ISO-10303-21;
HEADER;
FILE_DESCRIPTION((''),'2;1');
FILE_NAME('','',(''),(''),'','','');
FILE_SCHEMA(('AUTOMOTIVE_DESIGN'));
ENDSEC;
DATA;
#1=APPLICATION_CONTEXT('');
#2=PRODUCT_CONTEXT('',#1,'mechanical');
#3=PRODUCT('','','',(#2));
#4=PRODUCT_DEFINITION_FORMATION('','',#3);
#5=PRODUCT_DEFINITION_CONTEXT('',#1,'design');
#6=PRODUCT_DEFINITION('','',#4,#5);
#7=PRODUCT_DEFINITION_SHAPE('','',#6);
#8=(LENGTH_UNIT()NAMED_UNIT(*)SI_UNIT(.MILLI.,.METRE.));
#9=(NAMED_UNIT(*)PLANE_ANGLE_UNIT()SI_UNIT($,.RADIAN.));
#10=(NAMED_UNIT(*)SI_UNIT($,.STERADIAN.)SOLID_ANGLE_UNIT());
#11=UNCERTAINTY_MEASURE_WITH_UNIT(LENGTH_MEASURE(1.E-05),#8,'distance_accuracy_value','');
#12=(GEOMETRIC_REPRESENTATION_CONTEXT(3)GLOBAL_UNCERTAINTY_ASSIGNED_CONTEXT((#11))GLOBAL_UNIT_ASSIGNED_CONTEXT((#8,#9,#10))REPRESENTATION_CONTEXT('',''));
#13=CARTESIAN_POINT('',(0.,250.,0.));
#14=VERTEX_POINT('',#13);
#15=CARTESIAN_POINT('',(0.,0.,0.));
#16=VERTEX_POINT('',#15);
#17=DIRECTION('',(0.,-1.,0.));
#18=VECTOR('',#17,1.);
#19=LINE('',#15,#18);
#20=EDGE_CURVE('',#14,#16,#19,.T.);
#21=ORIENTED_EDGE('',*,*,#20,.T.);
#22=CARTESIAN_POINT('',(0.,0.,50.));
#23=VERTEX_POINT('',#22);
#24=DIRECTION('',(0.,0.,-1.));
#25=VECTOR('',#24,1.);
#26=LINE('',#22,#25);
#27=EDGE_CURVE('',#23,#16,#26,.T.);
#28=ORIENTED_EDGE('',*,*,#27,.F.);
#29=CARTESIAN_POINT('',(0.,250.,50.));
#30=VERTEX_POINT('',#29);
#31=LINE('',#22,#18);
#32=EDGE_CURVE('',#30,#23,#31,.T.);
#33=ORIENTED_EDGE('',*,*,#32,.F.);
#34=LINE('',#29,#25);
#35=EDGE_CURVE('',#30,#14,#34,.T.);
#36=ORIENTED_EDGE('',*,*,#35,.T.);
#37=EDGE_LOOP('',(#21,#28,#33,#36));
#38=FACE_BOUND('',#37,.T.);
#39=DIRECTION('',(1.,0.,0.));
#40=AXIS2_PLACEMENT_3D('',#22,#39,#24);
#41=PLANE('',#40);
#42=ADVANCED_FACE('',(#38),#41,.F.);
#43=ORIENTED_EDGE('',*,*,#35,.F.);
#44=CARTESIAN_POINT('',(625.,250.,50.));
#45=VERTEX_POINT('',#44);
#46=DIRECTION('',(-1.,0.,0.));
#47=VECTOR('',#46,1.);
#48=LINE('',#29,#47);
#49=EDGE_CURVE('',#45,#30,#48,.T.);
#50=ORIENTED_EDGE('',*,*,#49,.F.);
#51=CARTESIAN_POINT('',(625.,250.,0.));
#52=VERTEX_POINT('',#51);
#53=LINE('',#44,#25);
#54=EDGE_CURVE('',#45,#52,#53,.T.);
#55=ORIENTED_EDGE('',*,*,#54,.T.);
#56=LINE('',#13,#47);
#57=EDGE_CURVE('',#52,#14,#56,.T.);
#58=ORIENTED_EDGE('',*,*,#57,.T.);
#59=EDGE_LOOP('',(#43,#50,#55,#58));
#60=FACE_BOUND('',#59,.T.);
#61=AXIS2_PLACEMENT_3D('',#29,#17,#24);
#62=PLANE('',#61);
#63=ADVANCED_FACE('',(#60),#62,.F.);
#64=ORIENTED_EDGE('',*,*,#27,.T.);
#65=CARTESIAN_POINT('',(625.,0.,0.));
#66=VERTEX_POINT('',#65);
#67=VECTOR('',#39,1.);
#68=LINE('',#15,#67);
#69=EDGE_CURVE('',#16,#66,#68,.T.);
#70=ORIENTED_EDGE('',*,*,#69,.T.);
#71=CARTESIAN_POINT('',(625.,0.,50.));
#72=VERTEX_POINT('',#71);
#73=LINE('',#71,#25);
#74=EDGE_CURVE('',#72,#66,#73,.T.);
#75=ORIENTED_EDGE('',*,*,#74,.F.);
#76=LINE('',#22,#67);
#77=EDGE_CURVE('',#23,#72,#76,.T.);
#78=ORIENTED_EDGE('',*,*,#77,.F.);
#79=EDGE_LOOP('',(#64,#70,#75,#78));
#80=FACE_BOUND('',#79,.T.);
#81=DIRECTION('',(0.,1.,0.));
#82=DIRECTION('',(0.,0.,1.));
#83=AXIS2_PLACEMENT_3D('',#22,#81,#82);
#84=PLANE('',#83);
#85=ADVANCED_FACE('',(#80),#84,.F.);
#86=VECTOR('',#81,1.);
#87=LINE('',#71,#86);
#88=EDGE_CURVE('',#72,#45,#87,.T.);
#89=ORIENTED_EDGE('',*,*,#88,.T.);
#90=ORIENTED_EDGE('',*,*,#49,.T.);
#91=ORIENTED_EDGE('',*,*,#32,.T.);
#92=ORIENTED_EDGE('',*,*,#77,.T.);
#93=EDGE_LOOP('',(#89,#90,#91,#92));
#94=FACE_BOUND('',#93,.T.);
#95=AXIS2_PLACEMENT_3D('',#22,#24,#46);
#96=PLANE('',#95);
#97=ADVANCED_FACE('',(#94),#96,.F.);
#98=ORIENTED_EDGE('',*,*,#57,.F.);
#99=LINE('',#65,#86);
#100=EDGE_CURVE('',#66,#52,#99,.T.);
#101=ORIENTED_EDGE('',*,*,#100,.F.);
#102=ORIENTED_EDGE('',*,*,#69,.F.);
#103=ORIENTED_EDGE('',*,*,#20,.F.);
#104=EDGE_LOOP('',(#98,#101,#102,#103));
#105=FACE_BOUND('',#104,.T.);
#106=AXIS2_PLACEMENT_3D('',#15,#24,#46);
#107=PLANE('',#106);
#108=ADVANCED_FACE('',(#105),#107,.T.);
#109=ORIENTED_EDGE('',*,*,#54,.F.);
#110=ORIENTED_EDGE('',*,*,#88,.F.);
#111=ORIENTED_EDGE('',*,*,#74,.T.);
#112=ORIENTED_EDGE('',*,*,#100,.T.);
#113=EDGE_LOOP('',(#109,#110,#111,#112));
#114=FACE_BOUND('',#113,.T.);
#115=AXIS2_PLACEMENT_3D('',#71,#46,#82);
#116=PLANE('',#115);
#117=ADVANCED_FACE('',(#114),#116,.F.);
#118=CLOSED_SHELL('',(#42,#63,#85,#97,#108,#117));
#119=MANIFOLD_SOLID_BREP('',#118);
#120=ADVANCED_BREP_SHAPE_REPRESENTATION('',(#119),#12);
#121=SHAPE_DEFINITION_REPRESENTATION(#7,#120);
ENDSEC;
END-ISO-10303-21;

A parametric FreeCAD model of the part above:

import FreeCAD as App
import Part
import Sketcher
from FreeCAD import Vector
Q = App.Units.Quantity


def add_polygon(sketch, points):
    """Adds a closed chain of lines whose ends are joined by coincident constraints."""
    first, n = sketch.GeometryCount, len(points)
    for a, b in zip(points, points[1:] + points[:1]):
        sketch.addGeometry(Part.LineSegment(App.Vector(*a, 0), App.Vector(*b, 0)), False)
    for i in range(n):
        sketch.addConstraint(Sketcher.Constraint("Coincident", first + i, 2, first + (i + 1) % n, 1))

doc = App.newDocument("Part")
body = doc.addObject("PartDesign::Body", "Body")

# Sketch on XY plane
sketch1 = body.newObject("Sketcher::SketchObject", "Sketch")
sketch1.AttachmentSupport = (doc.getObject("XY_Plane"), [""])
sketch1.MapMode = "FlatFace"
add_polygon(sketch1, [(0, 250), (0, 0), (625, 0), (625, 250)])  # lines 0-3
sketch1.addConstraint([
    Sketcher.Constraint("Vertical", 0),
    Sketcher.Constraint("Horizontal", 1),
    Sketcher.Constraint("Vertical", 2),
    Sketcher.Constraint("Horizontal", 3),
    Sketcher.Constraint("Coincident", 0, 2, -1, 1),
    Sketcher.Constraint("DistanceX", 1, 1, 1, 2, Q("625 mm")),
    Sketcher.Constraint("DistanceY", 0, 2, 0, 1, Q("250 mm")),
])
pad1 = body.newObject("PartDesign::Pad", "Pad")
pad1.Profile = sketch1
pad1.Length = 50

doc.recompute()
